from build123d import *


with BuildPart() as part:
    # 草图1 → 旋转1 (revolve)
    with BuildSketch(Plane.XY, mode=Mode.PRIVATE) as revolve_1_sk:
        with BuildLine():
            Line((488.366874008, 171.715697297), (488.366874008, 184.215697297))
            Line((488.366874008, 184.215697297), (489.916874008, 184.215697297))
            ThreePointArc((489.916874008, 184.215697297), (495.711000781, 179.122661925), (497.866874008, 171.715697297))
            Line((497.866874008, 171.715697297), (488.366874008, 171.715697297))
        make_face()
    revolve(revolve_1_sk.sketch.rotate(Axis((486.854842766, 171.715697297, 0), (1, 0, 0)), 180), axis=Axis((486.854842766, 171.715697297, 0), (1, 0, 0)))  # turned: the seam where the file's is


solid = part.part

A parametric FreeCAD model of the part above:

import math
import FreeCAD as App
import Part
import Sketcher

V = App.Vector
Q = App.Units.Quantity

doc = App.newDocument("Part")
body = doc.addObject("PartDesign::Body", "Body")

sketch1 = body.newObject("Sketcher::SketchObject", "Sketch")
sketch1.AttachmentSupport = (doc.getObject("XY_Plane"), [""])
sketch1.MapMode = "FlatFace"
sketch1.addGeometry([
    Part.LineSegment(V(488.4, 184.2, 0), V(488.4, 171.7, 0)),
    Part.LineSegment(V(488.4, 171.7, 0), V(497.9, 171.7, 0)),
    Part.ArcOfCircle(Part.Circle(V(484.1, 171.7, 0), V(0, 0, 1), 13.8), math.radians(0), math.radians(65)),
    Part.LineSegment(V(489.9, 184.2, 0), V(488.4, 184.2, 0)),
], False)
sketch1.addGeometry(Part.LineSegment(V(484.1, 171.7, 0), V(497.9, 171.7, 0)), True)
sketch1.addConstraint([
    Sketcher.Constraint("Coincident", 0, 2, 1, 1),
    Sketcher.Constraint("Coincident", 1, 2, 2, 1),
    Sketcher.Constraint("Coincident", 2, 2, 3, 1),
    Sketcher.Constraint("Coincident", 3, 2, 0, 1),
    Sketcher.Constraint("Vertical", 0),
    Sketcher.Constraint("Horizontal", 1),
    Sketcher.Constraint("Horizontal", 3),
    Sketcher.Constraint("Horizontal", 4),
    Sketcher.Constraint("Coincident", 4, 1, 2, 3),
    Sketcher.Constraint("Coincident", 4, 2, 1, 2),
    Sketcher.Constraint("DistanceX", 1, 1, 1, 2, Q("9.5 mm")),
    Sketcher.Constraint("DistanceY", 0, 2, 0, 1, Q("12.5 mm")),
    Sketcher.Constraint("DistanceX", 3, 2, 3, 1, Q("1.55 mm")),
    Sketcher.Constraint("DistanceX", -1, 1, 2, 3, Q("484.06483 mm")),
    Sketcher.Constraint("DistanceY", -1, 1, 2, 3, Q("171.715697 mm")),
])
revolution = body.newObject("PartDesign::Revolution", "Revolution")
revolution.Profile = sketch1
revolution.ReferenceAxis = (sketch1, ["Axis0"])
revolution.Angle = 360

doc.recompute()
